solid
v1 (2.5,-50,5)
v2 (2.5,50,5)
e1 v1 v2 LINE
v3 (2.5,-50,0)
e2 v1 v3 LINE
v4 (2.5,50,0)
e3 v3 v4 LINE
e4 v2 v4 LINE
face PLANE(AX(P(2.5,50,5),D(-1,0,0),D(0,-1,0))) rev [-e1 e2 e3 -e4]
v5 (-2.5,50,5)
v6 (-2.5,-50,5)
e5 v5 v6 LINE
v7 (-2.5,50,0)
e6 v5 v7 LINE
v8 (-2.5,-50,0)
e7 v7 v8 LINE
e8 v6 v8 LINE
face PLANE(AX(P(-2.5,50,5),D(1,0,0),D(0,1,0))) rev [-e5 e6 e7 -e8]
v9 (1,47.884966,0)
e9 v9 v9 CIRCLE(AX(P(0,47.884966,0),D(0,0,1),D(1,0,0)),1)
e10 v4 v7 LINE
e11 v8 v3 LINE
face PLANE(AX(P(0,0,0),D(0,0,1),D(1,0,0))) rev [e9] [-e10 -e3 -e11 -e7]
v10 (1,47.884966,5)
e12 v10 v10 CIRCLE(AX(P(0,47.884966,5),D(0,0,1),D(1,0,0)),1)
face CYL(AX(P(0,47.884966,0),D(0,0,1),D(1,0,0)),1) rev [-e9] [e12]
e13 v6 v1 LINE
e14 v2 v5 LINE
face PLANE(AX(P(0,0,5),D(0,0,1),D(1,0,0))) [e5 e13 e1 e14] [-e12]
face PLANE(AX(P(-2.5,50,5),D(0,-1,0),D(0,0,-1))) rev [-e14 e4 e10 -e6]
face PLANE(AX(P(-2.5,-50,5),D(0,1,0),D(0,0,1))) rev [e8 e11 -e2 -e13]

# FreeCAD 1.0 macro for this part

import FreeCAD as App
import Part
import Sketcher
Q = App.Units.Quantity

doc = App.newDocument("Part")
body = doc.addObject("PartDesign::Body", "Body")

sketch1 = doc.addObject("Sketcher::SketchObject", "Sketch")
body.addObject(sketch1)
sketch1.AttachmentSupport = (doc.XY_Plane, [""])
sketch1.MapMode = "FlatFace"
sketch1.addGeometry(Part.LineSegment(App.Vector(-2, 50, 0), App.Vector(-2, -50, 0)), False)
sketch1.addGeometry(Part.LineSegment(App.Vector(-2, -50, 0), App.Vector(2, -50, 0)), False)
sketch1.addGeometry(Part.LineSegment(App.Vector(2, -50, 0), App.Vector(2, 50, 0)), False)
sketch1.addGeometry(Part.LineSegment(App.Vector(2, 50, 0), App.Vector(-2, 50, 0)), False)
sketch1.addConstraint(Sketcher.Constraint("Coincident", 0, 2, 1, 1))
sketch1.addConstraint(Sketcher.Constraint("Coincident", 1, 2, 2, 1))
sketch1.addConstraint(Sketcher.Constraint("Coincident", 2, 2, 3, 1))
sketch1.addConstraint(Sketcher.Constraint("Coincident", 3, 2, 0, 1))
sketch1.addConstraint(Sketcher.Constraint("Vertical", 0))
sketch1.addConstraint(Sketcher.Constraint("Horizontal", 1))
sketch1.addConstraint(Sketcher.Constraint("Vertical", 2))
sketch1.addConstraint(Sketcher.Constraint("Horizontal", 3))
sketch1.addConstraint(Sketcher.Constraint("Symmetric", 0, 2, 2, 2, -1, 1))
sketch1.addConstraint(Sketcher.Constraint("DistanceX", 1, 1, 1, 2, Q("5 mm")))
sketch1.addConstraint(Sketcher.Constraint("DistanceY", 0, 2, 0, 1, Q("100 mm")))
pad1 = doc.addObject("PartDesign::Pad", "Pad")
body.addObject(pad1)
pad1.Profile = sketch1
pad1.Length = 5

sketch2 = doc.addObject("Sketcher::SketchObject", "Sketch001")
body.addObject(sketch2)
sketch2.AttachmentSupport = (doc.XY_Plane, [""])
sketch2.MapMode = "FlatFace"
sketch2.AttachmentOffset = App.Placement(App.Vector(0, 0, 5), App.Rotation())
sketch2.addGeometry(Part.Circle(App.Vector(0, 47.9, 0), App.Vector(0, 0, 1), 1), False)
sketch2.addConstraint(Sketcher.Constraint("PointOnObject", 0, 3, -2))
sketch2.addConstraint(Sketcher.Constraint("Diameter", 0, Q("2 mm")))
sketch2.addConstraint(Sketcher.Constraint("DistanceY", -1, 1, 0, 3, Q("47.884966 mm")))
pocket1 = doc.addObject("PartDesign::Pocket", "Pocket")
body.addObject(pocket1)
pocket1.Profile = sketch2
pocket1.Type = "ThroughAll"

doc.recompute()
